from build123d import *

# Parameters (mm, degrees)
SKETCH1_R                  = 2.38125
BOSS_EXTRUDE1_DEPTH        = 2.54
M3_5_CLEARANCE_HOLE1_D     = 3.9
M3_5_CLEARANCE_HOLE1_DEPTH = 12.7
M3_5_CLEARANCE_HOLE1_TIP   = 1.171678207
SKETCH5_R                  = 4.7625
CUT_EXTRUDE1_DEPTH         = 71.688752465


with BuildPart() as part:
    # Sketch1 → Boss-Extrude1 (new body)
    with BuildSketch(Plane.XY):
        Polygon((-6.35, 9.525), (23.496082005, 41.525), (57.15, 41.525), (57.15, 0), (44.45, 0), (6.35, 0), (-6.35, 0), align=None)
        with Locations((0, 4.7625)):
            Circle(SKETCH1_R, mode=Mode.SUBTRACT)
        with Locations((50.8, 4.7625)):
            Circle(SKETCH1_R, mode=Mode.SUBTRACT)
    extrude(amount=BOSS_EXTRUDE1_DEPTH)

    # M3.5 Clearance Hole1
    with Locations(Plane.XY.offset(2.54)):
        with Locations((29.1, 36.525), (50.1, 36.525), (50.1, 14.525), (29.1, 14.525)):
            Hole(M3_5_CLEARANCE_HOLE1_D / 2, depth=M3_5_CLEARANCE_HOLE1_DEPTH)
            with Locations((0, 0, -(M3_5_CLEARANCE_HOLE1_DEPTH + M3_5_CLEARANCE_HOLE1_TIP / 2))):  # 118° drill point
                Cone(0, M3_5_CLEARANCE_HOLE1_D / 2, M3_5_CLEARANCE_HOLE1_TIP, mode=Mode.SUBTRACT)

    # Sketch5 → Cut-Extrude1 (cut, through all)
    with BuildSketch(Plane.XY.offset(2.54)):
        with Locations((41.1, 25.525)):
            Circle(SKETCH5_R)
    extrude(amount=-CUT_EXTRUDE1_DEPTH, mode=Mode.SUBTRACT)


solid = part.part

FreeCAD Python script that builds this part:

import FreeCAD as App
import Part
import Sketcher
Q = App.Units.Quantity


def add_polygon(sketch, points):
    """Adds a closed chain of lines whose ends are joined by coincident constraints."""
    first, n = sketch.GeometryCount, len(points)
    for a, b in zip(points, points[1:] + points[:1]):
        sketch.addGeometry(Part.LineSegment(App.Vector(*a, 0), App.Vector(*b, 0)), False)
    for i in range(n):
        sketch.addConstraint(Sketcher.Constraint("Coincident", first + i, 2, first + (i + 1) % n, 1))

doc = App.newDocument("Part")
body = doc.addObject("PartDesign::Body", "Body")

# Sketch on XY plane
sketch1 = body.newObject("Sketcher::SketchObject", "Sketch")
sketch1.AttachmentSupport = (doc.getObject("XY_Plane"), [""])
sketch1.MapMode = "FlatFace"
add_polygon(sketch1, [(23.5, 41.5), (-6.3, 9.5), (-6.3, 0), (57.1, 0), (57.1, 41.5)])  # lines 0-4
sketch1.addGeometry(Part.Circle(App.Vector(50.8, 4.8, 0), App.Vector(0, 0, 1), 2.4), False)  # 5
sketch1.addGeometry(Part.Circle(App.Vector(0, 4.8, 0), App.Vector(0, 0, 1), 2.4), False)  # 6
sketch1.addConstraint([
    Sketcher.Constraint("Vertical", 1),
    Sketcher.Constraint("Horizontal", 2),
    Sketcher.Constraint("Vertical", 3),
    Sketcher.Constraint("Horizontal", 4),
    Sketcher.Constraint("Equal", 5, 6),
    Sketcher.Constraint("PointOnObject", 6, 3, -2),
    Sketcher.Constraint("PointOnObject", 1, 2, -1),
    Sketcher.Constraint("Horizontal", 5, 3, 6, 3),
    Sketcher.Constraint("Diameter", 5, Q("0.1875 in")),
    Sketcher.Constraint("DistanceX", 2, 1, 2, 2, Q("2.5 in")),
    Sketcher.Constraint("DistanceX", -1, 1, 5, 3, Q("2 in")),
    Sketcher.Constraint("DistanceY", 1, 2, 1, 1, Q("0.375 in")),
    Sketcher.Constraint("DistanceX", 0, 2, -1, 1, Q("0.25 in")),
    Sketcher.Constraint("DistanceY", -1, 1, 5, 3, Q("0.1875 in")),
    Sketcher.Constraint("DistanceY", 3, 1, 3, 2, Q("41.525 mm")),
    Sketcher.Constraint("DistanceX", 4, 2, 4, 1, Q("33.653918 mm")),
])
pad1 = body.newObject("PartDesign::Pad", "Pad")
pad1.Profile = sketch1
pad1.Length = Q("0.1 in")

# Sketch on XY plane
sketch2 = body.newObject("Sketcher::SketchObject", "Sketch001")
sketch2.AttachmentSupport = (doc.getObject("XY_Plane"), [""])
sketch2.MapMode = "FlatFace"
sketch2.AttachmentOffset = App.Placement(App.Vector(0, 0, 0.1 * 25.4), App.Rotation())
sketch2.addGeometry([
    Part.Circle(App.Vector(29.1, 36.5, 0), App.Vector(0, 0, 1), 1.9),
    Part.Circle(App.Vector(50.1, 36.5, 0), App.Vector(0, 0, 1), 1.9),
    Part.Circle(App.Vector(50.1, 14.5, 0), App.Vector(0, 0, 1), 1.9),
    Part.Circle(App.Vector(29.1, 14.5, 0), App.Vector(0, 0, 1), 1.9),
], False)
sketch2.addConstraint([
    Sketcher.Constraint("Equal", 0, 1),
    Sketcher.Constraint("Equal", 1, 2),
    Sketcher.Constraint("Equal", 2, 3),
    Sketcher.Constraint("Horizontal", 0, 3, 1, 3),
    Sketcher.Constraint("Horizontal", 2, 3, 3, 3),
    Sketcher.Constraint("Vertical", 1, 3, 2, 3),
    Sketcher.Constraint("Vertical", 0, 3, 3, 3),
    Sketcher.Constraint("Diameter", 0, Q("3.9 mm")),
    Sketcher.Constraint("DistanceX", -1, 1, 0, 3, Q("29.1 mm")),
    Sketcher.Constraint("DistanceY", -1, 1, 0, 3, Q("36.525 mm")),
    Sketcher.Constraint("DistanceX", -1, 1, 1, 3, Q("50.1 mm")),
    Sketcher.Constraint("DistanceY", -1, 1, 2, 3, Q("14.525 mm")),
])
doc.recompute()
hole = body.newObject("PartDesign::Hole", "Hole")
hole.Profile = sketch2
hole.ThreadType = "None"
hole.Diameter = 3.9
hole.DepthType = "Dimension"
hole.Depth = Q("0.5 in")
hole.DrillPoint = "Angled"
hole.DrillPointAngle = 118

# Sketch on XY plane
sketch3 = body.newObject("Sketcher::SketchObject", "Sketch002")
sketch3.AttachmentSupport = (doc.getObject("XY_Plane"), [""])
sketch3.MapMode = "FlatFace"
sketch3.AttachmentOffset = App.Placement(App.Vector(0, 0, 0.1 * 25.4), App.Rotation())
sketch3.addGeometry(Part.Circle(App.Vector(41.1, 25.5, 0), App.Vector(0, 0, 1), 4.8), False)
sketch3.addConstraint([
    Sketcher.Constraint("Diameter", 0, Q("0.375 in")),
    Sketcher.Constraint("DistanceX", -1, 1, 0, 3, Q("41.1 mm")),
    Sketcher.Constraint("DistanceY", -1, 1, 0, 3, Q("25.525 mm")),
])
pocket1 = body.newObject("PartDesign::Pocket", "Pocket")
pocket1.Profile = sketch3
pocket1.Type = "ThroughAll"

doc.recompute()
